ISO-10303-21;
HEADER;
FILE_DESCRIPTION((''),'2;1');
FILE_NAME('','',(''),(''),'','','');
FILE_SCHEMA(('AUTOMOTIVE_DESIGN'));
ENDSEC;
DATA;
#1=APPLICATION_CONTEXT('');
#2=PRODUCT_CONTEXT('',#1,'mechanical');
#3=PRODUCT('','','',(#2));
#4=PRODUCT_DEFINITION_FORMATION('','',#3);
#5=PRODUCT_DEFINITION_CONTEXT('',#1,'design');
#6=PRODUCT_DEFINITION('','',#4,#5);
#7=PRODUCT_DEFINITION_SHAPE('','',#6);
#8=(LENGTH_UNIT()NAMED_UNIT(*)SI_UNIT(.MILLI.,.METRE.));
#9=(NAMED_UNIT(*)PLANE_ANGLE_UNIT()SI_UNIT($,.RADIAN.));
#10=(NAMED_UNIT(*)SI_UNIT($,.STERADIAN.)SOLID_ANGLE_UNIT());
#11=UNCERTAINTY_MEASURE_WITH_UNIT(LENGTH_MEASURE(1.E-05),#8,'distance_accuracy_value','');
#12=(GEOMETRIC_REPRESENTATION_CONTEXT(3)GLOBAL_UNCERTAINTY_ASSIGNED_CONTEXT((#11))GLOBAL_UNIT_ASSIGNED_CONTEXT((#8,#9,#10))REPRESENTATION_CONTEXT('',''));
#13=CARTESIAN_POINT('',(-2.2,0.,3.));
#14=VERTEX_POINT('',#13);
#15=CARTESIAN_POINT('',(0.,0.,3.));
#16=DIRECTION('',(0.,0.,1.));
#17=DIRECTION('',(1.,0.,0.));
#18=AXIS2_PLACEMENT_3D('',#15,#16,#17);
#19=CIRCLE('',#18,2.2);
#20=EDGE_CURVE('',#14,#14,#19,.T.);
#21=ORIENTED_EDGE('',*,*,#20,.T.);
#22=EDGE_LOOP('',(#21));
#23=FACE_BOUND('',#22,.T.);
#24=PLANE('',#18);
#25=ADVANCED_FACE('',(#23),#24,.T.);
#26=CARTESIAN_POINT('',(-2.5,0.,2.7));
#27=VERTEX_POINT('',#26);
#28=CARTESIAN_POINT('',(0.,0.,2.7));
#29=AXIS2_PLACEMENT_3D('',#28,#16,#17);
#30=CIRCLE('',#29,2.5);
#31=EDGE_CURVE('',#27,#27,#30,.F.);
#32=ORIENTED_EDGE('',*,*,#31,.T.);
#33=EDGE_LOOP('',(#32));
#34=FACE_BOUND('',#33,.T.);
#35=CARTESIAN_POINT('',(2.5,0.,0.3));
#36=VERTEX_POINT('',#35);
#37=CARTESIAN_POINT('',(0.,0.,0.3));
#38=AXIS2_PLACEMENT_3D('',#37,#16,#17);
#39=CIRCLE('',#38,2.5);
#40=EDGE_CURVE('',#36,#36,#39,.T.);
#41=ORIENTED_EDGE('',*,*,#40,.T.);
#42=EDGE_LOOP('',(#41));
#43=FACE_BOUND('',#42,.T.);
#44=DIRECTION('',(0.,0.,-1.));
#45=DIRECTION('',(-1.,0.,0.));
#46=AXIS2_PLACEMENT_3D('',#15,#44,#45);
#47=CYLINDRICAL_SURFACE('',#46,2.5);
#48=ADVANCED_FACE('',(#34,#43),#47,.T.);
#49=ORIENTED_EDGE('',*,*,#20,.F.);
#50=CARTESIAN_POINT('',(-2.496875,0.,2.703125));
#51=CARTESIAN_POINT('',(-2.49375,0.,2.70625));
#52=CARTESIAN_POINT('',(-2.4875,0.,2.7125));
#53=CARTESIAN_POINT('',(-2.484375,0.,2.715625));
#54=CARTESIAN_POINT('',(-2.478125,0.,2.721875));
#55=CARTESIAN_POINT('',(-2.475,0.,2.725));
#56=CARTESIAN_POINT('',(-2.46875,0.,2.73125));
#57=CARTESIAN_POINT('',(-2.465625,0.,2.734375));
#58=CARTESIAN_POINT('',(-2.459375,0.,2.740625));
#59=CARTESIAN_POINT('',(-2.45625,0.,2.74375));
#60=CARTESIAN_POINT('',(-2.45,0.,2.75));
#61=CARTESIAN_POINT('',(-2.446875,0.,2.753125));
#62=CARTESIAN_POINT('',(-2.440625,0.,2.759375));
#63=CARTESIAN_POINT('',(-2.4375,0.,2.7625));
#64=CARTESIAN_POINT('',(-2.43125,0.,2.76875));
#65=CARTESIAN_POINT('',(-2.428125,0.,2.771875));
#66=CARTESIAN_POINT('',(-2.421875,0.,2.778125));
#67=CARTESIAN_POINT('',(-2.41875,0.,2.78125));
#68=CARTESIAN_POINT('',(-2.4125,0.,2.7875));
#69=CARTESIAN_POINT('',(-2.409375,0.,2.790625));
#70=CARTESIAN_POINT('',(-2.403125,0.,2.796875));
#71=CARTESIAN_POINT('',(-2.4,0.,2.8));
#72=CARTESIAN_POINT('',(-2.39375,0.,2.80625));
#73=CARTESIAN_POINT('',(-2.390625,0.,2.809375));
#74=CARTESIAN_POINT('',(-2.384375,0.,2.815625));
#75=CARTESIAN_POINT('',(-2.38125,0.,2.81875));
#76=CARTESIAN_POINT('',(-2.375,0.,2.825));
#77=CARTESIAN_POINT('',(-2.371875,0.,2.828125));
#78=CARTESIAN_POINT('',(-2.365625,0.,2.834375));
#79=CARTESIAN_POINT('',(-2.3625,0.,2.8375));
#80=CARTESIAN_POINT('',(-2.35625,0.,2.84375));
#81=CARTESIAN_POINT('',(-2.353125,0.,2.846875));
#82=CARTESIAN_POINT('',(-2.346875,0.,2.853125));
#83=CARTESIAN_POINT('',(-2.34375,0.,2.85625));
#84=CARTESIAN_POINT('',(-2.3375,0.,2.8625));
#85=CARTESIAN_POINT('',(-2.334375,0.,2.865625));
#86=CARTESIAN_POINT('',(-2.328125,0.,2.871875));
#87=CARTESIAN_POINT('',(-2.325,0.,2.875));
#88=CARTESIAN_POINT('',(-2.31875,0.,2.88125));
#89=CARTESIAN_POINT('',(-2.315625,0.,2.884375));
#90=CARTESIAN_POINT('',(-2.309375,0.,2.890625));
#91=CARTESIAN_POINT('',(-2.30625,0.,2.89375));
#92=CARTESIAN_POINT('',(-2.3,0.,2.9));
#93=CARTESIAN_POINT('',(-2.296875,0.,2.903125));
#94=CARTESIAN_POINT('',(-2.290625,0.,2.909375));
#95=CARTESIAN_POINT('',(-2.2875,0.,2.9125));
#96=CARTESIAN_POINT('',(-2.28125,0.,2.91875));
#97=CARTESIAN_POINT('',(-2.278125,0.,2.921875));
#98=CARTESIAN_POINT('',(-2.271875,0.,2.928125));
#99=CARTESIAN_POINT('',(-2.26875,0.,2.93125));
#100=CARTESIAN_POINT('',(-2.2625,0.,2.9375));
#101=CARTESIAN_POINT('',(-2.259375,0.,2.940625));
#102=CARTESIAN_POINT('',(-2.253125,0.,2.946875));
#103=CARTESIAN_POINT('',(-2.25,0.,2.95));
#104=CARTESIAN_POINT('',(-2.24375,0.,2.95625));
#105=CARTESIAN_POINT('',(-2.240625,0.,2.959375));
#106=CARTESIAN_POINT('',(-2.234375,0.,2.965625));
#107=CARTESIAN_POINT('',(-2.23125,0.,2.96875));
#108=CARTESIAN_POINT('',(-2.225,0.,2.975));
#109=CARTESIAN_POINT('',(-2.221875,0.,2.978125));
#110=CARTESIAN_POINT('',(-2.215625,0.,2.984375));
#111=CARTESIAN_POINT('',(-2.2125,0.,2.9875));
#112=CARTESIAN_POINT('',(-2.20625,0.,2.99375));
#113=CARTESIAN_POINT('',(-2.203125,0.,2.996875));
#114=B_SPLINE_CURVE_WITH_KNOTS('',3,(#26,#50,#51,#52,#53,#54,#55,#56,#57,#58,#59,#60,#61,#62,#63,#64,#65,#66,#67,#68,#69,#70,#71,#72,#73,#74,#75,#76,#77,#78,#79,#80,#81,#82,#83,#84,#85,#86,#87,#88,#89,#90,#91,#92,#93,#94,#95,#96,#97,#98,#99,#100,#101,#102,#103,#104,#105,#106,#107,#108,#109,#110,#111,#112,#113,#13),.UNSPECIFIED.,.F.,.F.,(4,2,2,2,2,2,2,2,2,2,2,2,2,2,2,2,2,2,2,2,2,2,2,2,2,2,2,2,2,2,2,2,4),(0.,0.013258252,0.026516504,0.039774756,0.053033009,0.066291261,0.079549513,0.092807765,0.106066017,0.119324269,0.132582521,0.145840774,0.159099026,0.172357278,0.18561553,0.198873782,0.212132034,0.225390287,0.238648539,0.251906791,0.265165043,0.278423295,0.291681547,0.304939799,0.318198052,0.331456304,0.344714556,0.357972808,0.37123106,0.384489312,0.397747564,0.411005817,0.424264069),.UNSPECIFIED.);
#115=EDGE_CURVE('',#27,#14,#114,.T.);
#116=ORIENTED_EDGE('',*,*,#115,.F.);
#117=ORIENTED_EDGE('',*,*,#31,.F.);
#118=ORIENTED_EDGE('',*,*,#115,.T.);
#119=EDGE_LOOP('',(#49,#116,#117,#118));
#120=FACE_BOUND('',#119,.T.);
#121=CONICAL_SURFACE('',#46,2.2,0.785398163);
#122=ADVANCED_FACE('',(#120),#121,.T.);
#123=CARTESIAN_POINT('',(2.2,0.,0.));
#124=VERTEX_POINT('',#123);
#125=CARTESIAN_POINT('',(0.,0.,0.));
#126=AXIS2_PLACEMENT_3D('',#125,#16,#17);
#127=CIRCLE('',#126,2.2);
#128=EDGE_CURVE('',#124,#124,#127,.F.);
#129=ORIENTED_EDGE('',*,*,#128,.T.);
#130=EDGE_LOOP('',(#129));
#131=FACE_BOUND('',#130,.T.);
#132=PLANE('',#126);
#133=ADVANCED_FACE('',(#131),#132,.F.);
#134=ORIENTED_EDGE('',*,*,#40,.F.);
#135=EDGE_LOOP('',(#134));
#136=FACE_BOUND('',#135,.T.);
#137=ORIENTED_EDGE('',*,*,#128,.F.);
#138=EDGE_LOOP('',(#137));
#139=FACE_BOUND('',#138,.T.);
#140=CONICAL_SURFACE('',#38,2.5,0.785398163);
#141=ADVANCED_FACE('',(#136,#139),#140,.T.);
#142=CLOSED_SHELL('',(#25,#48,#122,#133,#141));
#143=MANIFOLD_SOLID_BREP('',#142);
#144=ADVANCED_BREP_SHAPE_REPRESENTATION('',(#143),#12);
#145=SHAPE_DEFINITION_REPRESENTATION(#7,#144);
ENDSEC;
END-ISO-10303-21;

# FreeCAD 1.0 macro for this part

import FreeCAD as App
import Part
import Sketcher

V = App.Vector


def edges_at(feature, points):
    """Names of the edges that pass closest to the given points."""
    edges = feature.Shape.Edges
    near = lambda p: min(range(len(edges)), key=lambda i: edges[i].distToShape(Part.Vertex(*p))[0])
    return sorted({f"Edge{near(p) + 1}" for p in points})

doc = App.newDocument("Part")
body = doc.addObject("PartDesign::Body", "Body")

sketch1 = doc.addObject("Sketcher::SketchObject", "Sketch")
body.addObject(sketch1)
sketch1.AttachmentSupport = (doc.XY_Plane, [""])
sketch1.MapMode = "FlatFace"
sketch1.addGeometry(Part.Circle(V(0, 0, 0), V(0, 0, 1), 2.5), False)
sketch1.addConstraint(Sketcher.Constraint("Coincident", 0, 3, -1, 1))
sketch1.addConstraint(Sketcher.Constraint("Diameter", 0, 5.0))
pad1 = doc.addObject("PartDesign::Pad", "Pad")
body.addObject(pad1)
pad1.Profile = sketch1
pad1.Length = 3
doc.recompute()

chamfer = doc.addObject("PartDesign::Chamfer", "Chamfer")
body.addObject(chamfer)
chamfer.Base = (pad1, edges_at(pad1, [(-2.5, 0, 0), (-2.5, 0, 3)]))
chamfer.Size = 0.3

doc.recompute()
